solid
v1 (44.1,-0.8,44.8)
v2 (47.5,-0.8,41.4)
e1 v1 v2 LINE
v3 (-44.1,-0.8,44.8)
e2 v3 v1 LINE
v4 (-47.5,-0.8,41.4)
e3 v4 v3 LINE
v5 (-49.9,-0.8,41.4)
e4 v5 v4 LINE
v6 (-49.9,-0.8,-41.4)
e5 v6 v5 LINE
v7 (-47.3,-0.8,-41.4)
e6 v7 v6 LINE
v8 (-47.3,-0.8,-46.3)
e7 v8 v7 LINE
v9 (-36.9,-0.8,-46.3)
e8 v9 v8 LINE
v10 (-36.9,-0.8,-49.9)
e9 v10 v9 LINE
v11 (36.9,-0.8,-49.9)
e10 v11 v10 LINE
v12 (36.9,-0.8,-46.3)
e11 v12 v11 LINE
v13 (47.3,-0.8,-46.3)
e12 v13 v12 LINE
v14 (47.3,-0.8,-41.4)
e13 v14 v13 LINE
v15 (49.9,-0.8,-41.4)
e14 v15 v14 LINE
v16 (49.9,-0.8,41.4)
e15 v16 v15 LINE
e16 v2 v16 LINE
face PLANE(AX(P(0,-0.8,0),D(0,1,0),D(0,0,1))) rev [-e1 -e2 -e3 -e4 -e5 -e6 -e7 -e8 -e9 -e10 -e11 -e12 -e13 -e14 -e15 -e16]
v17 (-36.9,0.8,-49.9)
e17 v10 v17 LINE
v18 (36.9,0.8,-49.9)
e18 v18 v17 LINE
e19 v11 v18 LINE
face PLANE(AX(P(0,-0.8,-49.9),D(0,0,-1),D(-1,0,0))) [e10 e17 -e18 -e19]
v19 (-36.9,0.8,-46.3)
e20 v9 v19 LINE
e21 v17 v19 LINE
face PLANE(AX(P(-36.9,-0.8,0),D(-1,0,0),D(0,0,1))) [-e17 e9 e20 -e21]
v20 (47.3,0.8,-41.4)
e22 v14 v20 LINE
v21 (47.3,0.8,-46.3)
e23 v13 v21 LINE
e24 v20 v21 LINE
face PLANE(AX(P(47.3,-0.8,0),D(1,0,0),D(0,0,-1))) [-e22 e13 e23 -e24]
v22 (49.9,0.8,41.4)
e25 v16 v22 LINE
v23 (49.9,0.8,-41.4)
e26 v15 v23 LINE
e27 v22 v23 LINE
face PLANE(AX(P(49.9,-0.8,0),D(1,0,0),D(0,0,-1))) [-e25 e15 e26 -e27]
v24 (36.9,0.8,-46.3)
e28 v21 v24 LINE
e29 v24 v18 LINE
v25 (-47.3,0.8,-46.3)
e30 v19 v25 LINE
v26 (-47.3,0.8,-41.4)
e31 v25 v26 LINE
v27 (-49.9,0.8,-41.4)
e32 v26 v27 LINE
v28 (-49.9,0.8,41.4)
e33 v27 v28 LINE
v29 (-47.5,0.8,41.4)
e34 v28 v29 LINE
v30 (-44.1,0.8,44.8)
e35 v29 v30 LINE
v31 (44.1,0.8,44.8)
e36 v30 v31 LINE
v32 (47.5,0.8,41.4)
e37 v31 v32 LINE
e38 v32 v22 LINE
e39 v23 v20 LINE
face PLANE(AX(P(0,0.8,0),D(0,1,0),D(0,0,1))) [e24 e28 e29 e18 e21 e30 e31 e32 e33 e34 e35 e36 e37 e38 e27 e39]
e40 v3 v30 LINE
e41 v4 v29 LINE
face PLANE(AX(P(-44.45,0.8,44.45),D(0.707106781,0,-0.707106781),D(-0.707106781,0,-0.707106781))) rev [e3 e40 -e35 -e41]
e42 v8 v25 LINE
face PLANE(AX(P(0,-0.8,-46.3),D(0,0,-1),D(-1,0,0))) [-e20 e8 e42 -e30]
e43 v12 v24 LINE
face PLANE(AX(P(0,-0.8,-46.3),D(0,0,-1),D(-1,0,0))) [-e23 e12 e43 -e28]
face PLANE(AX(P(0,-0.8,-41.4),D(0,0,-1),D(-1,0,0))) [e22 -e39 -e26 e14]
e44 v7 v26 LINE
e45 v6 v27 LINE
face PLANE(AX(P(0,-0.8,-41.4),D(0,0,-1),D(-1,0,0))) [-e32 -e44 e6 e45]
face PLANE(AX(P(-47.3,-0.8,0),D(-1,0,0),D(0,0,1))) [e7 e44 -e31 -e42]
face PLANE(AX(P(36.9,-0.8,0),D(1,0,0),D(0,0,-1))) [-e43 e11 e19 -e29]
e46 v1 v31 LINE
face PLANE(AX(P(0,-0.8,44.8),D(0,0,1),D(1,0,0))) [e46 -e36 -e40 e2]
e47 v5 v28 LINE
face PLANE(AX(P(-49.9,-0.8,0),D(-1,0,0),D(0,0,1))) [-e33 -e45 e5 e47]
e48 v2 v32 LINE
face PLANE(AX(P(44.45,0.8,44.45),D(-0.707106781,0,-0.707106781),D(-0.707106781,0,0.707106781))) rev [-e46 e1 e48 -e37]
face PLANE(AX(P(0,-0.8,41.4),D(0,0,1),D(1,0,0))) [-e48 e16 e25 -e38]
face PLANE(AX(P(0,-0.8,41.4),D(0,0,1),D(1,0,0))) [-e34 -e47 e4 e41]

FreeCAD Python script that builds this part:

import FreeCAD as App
import Part
import Sketcher


def add_polygon(sketch, points):
    """Adds a closed chain of lines whose ends are joined by coincident constraints."""
    first, n = sketch.GeometryCount, len(points)
    for a, b in zip(points, points[1:] + points[:1]):
        sketch.addGeometry(Part.LineSegment(App.Vector(*a, 0), App.Vector(*b, 0)), False)
    for i in range(n):
        sketch.addConstraint(Sketcher.Constraint("Coincident", first + i, 2, first + (i + 1) % n, 1))

doc = App.newDocument("Part")
params = doc.addObject("Spreadsheet::Sheet", "Params")
for row, (alias, value) in enumerate([
    ("sketch1_width", "74 mm"),
    ("sketch1_width2", "83 mm"),
    ("sketch1_width3", "2.6 mm"),
    ("sketch1_width4", "10.4 mm"),
    ("sketch1_height", "4.9 mm"),
    ("pad1_length", "1.6 mm"),
    ("sketch2_width", "74 mm"),
    ("sketch2_height", "83 mm"),
    ("sketch2_width2", "10.4 mm"),
    ("sketch2_width3", "2.6 mm"),
    ("sketch2_width4", "2.4 mm"),
    ("sketch3_width", "83 mm"),
    ("sketch3_width2", "88.2 mm"),
], start=1):
    params.set(f"A{row}", alias)
    params.set(f"B{row}", "=" + value)
    params.setAlias(f"B{row}", alias)

body = doc.addObject("PartDesign::Body", "Body")

sketch1 = body.newObject("Sketcher::SketchObject", "Sketch")
sketch1.AttachmentSupport = (doc.getObject("XZ_Plane"), [""])
sketch1.MapMode = "FlatFace"
add_polygon(sketch1, [(41.5, 47.4), (47.4, 41.5), (50, 41.5), (50, -41.5), (47.4, -41.5), (47.4, -46.4), (37, -46.4), (37, -50), (-37, -50), (-37, -46.4), (-47.4, -46.4), (-47.4, -41.5), (-50, -41.5), (-50, 41.5), (-47.4, 41.5), (-41.5, 47.4)])
sketch1.addConstraint(Sketcher.Constraint("Horizontal", 1))
sketch1.addConstraint(Sketcher.Constraint("Vertical", 2))
sketch1.addConstraint(Sketcher.Constraint("Horizontal", 3))
sketch1.addConstraint(Sketcher.Constraint("Vertical", 4))
sketch1.addConstraint(Sketcher.Constraint("Horizontal", 5))
sketch1.addConstraint(Sketcher.Constraint("Vertical", 6))
sketch1.addConstraint(Sketcher.Constraint("Horizontal", 7))
sketch1.addConstraint(Sketcher.Constraint("Vertical", 8))
sketch1.addConstraint(Sketcher.Constraint("Horizontal", 9))
sketch1.addConstraint(Sketcher.Constraint("Vertical", 10))
sketch1.addConstraint(Sketcher.Constraint("Horizontal", 11))
sketch1.addConstraint(Sketcher.Constraint("Vertical", 12))
sketch1.addConstraint(Sketcher.Constraint("Horizontal", 13))
sketch1.addConstraint(Sketcher.Constraint("Horizontal", 15))
sketch1.addConstraint(Sketcher.Constraint("Symmetric", 0, 2, 10, 2, -1, 1))
sketch1.addConstraint(Sketcher.Constraint("Symmetric", 2, 2, 12, 2, -1, 1))
sketch1.addConstraint(Sketcher.Constraint("Symmetric", 5, 2, 8, 2, -2))
sketch1.addConstraint(Sketcher.Constraint("Symmetric", 3, 2, 10, 2, -2))
sketch1.addConstraint(Sketcher.Constraint("Perpendicular", 0, 14))
sketch1.addConstraint(Sketcher.Constraint("Vertical", 10, 2, 13, 2))
sketch1.addConstraint(Sketcher.Constraint("Equal", 15, 2))
sketch1.addConstraint(Sketcher.Constraint("Equal", 0, 14))
sketch1.addConstraint(Sketcher.Constraint("DistanceX", 7, 2, 7, 1, 74.0))
sketch1.addConstraint(Sketcher.Constraint("DistanceX", 15, 1, 15, 2, 83.0))
sketch1.addConstraint(Sketcher.Constraint("DistanceX", 1, 1, 1, 2, 2.6))
sketch1.addConstraint(Sketcher.Constraint("DistanceX", 5, 2, 5, 1, 10.4))
sketch1.addConstraint(Sketcher.Constraint("DistanceY", 4, 2, 4, 1, 4.9))
sketch1.addConstraint(Sketcher.Constraint("DistanceY", 6, 2, 6, 1, 3.6))
sketch1.setExpression("Constraints[38]", "Params.sketch1_width")
sketch1.setExpression("Constraints[39]", "Params.sketch1_width2")
sketch1.setExpression("Constraints[40]", "Params.sketch1_width3")
sketch1.setExpression("Constraints[41]", "Params.sketch1_width4")
sketch1.setExpression("Constraints[42]", "Params.sketch1_height")
pad1 = body.newObject("PartDesign::Pad", "Pad")
pad1.Profile = sketch1
pad1.setExpression("Length", "Params.pad1_length")
pad1.Midplane = True

sketch2 = body.newObject("Sketcher::SketchObject", "Sketch001")
sketch2.AttachmentSupport = (doc.getObject("XZ_Plane"), [""])
sketch2.MapMode = "FlatFace"
add_polygon(sketch2, [(37, -50), (-37, -50), (-37, -46.4), (-47.4, -46.4), (-47.4, -41.5), (-50, -41.5), (-50, 41.5), (-47.4, 41.5), (-47.5, 41.4), (-49.9, 41.4), (-49.9, -41.4), (-47.3, -41.4), (-47.3, -46.3), (-36.9, -46.3), (-36.9, -49.9), (36.9, -49.9), (36.9, -46.3), (47.3, -46.3), (47.3, -41.4), (49.9, -41.4), (49.9, 41.4), (47.5, 41.4), (47.4, 41.5), (50, 41.5), (50, -41.5), (47.4, -41.5), (47.4, -46.4), (37, -46.4)])
sketch2.addConstraint(Sketcher.Constraint("Horizontal", 0))
sketch2.addConstraint(Sketcher.Constraint("Vertical", 1))
sketch2.addConstraint(Sketcher.Constraint("Horizontal", 2))
sketch2.addConstraint(Sketcher.Constraint("Vertical", 3))
sketch2.addConstraint(Sketcher.Constraint("Horizontal", 4))
sketch2.addConstraint(Sketcher.Constraint("Vertical", 5))
sketch2.addConstraint(Sketcher.Constraint("Horizontal", 6))
sketch2.addConstraint(Sketcher.Constraint("Horizontal", 8))
sketch2.addConstraint(Sketcher.Constraint("Vertical", 9))
sketch2.addConstraint(Sketcher.Constraint("Horizontal", 10))
sketch2.addConstraint(Sketcher.Constraint("Vertical", 11))
sketch2.addConstraint(Sketcher.Constraint("Horizontal", 12))
sketch2.addConstraint(Sketcher.Constraint("Vertical", 13))
sketch2.addConstraint(Sketcher.Constraint("Horizontal", 14))
sketch2.addConstraint(Sketcher.Constraint("Vertical", 15))
sketch2.addConstraint(Sketcher.Constraint("Horizontal", 16))
sketch2.addConstraint(Sketcher.Constraint("Vertical", 17))
sketch2.addConstraint(Sketcher.Constraint("Horizontal", 18))
sketch2.addConstraint(Sketcher.Constraint("Vertical", 19))
sketch2.addConstraint(Sketcher.Constraint("Horizontal", 20))
sketch2.addConstraint(Sketcher.Constraint("Horizontal", 22))
sketch2.addConstraint(Sketcher.Constraint("Vertical", 23))
sketch2.addConstraint(Sketcher.Constraint("Horizontal", 24))
sketch2.addConstraint(Sketcher.Constraint("Vertical", 25))
sketch2.addConstraint(Sketcher.Constraint("Horizontal", 26))
sketch2.addConstraint(Sketcher.Constraint("Vertical", 27))
sketch2.addConstraint(Sketcher.Constraint("Symmetric", 8, 2, 18, 2, -1, 1))
sketch2.addConstraint(Sketcher.Constraint("Symmetric", 3, 2, 21, 2, -1, 1))
sketch2.addConstraint(Sketcher.Constraint("Symmetric", 5, 2, 23, 2, -1, 1))
sketch2.addConstraint(Sketcher.Constraint("Symmetric", 12, 2, 15, 2, -2))
sketch2.addConstraint(Sketcher.Constraint("Symmetric", 10, 2, 17, 2, -2))
sketch2.addConstraint(Sketcher.Constraint("Symmetric", 7, 2, 20, 2, -2))
sketch2.addConstraint(Sketcher.Constraint("Symmetric", 6, 2, 21, 2, -2))
sketch2.addConstraint(Sketcher.Constraint("Symmetric", 2, 2, 25, 2, -2))
sketch2.addConstraint(Sketcher.Constraint("Perpendicular", 7, 21))
sketch2.addConstraint(Sketcher.Constraint("Equal", 6, 10))
sketch2.addConstraint(Sketcher.Constraint("Equal", 2, 12))
sketch2.addConstraint(Sketcher.Constraint("Equal", 16, 26))
sketch2.addConstraint(Sketcher.Constraint("Equal", 3, 11))
sketch2.addConstraint(Sketcher.Constraint("Equal", 1, 13))
sketch2.addConstraint(Sketcher.Constraint("DistanceX", 0, 2, 0, 1, 74.0))
sketch2.addConstraint(Sketcher.Constraint("DistanceY", 5, 1, 5, 2, 83.0))
sketch2.addConstraint(Sketcher.Constraint("DistanceX", 2, 2, 2, 1, 10.4))
sketch2.addConstraint(Sketcher.Constraint("DistanceX", 4, 2, 4, 1, 2.6))
sketch2.addConstraint(Sketcher.Constraint("DistanceX", 8, 2, 8, 1, 2.4))
sketch2.addConstraint(Sketcher.Constraint("DistanceX", 14, 1, 14, 2, 73.8))
sketch2.addConstraint(Sketcher.Constraint("DistanceY", 1, 1, 1, 2, 3.6))
sketch2.addConstraint(Sketcher.Constraint("DistanceY", 3, 1, 3, 2, 4.9))
sketch2.setExpression("Constraints[68]", "Params.sketch2_width")
sketch2.setExpression("Constraints[69]", "Params.sketch2_height")
sketch2.setExpression("Constraints[70]", "Params.sketch2_width2")
sketch2.setExpression("Constraints[71]", "Params.sketch2_width3")
sketch2.setExpression("Constraints[72]", "Params.sketch2_width4")
pocket1 = body.newObject("PartDesign::Pocket", "Pocket")
pocket1.Profile = sketch2
pocket1.Type = "ThroughAll"
pocket1.Midplane = True

sketch3 = body.newObject("Sketcher::SketchObject", "Sketch002")
sketch3.AttachmentSupport = (doc.getObject("XZ_Plane"), [""])
sketch3.MapMode = "FlatFace"
add_polygon(sketch3, [(-41.5, 47.4), (41.5, 47.4), (44.1, 44.8), (-44.1, 44.8)])
sketch3.addConstraint(Sketcher.Constraint("Horizontal", 0))
sketch3.addConstraint(Sketcher.Constraint("Horizontal", 2))
sketch3.addConstraint(Sketcher.Constraint("Perpendicular", 1, 3))
sketch3.addConstraint(Sketcher.Constraint("Equal", 1, 3))
sketch3.addConstraint(Sketcher.Constraint("DistanceX", 0, 1, 0, 2, 83.0))
sketch3.addConstraint(Sketcher.Constraint("DistanceX", 2, 2, 2, 1, 88.2))
sketch3.addConstraint(Sketcher.Constraint("DistanceX", -1, 1, 0, 2, 41.5))
sketch3.addConstraint(Sketcher.Constraint("DistanceY", -1, 1, 0, 2, 47.4))
sketch3.setExpression("Constraints[8]", "Params.sketch3_width")
sketch3.setExpression("Constraints[9]", "Params.sketch3_width2")
pocket2 = body.newObject("PartDesign::Pocket", "Pocket001")
pocket2.Profile = sketch3
pocket2.Type = "ThroughAll"
pocket2.Midplane = True

doc.recompute()
